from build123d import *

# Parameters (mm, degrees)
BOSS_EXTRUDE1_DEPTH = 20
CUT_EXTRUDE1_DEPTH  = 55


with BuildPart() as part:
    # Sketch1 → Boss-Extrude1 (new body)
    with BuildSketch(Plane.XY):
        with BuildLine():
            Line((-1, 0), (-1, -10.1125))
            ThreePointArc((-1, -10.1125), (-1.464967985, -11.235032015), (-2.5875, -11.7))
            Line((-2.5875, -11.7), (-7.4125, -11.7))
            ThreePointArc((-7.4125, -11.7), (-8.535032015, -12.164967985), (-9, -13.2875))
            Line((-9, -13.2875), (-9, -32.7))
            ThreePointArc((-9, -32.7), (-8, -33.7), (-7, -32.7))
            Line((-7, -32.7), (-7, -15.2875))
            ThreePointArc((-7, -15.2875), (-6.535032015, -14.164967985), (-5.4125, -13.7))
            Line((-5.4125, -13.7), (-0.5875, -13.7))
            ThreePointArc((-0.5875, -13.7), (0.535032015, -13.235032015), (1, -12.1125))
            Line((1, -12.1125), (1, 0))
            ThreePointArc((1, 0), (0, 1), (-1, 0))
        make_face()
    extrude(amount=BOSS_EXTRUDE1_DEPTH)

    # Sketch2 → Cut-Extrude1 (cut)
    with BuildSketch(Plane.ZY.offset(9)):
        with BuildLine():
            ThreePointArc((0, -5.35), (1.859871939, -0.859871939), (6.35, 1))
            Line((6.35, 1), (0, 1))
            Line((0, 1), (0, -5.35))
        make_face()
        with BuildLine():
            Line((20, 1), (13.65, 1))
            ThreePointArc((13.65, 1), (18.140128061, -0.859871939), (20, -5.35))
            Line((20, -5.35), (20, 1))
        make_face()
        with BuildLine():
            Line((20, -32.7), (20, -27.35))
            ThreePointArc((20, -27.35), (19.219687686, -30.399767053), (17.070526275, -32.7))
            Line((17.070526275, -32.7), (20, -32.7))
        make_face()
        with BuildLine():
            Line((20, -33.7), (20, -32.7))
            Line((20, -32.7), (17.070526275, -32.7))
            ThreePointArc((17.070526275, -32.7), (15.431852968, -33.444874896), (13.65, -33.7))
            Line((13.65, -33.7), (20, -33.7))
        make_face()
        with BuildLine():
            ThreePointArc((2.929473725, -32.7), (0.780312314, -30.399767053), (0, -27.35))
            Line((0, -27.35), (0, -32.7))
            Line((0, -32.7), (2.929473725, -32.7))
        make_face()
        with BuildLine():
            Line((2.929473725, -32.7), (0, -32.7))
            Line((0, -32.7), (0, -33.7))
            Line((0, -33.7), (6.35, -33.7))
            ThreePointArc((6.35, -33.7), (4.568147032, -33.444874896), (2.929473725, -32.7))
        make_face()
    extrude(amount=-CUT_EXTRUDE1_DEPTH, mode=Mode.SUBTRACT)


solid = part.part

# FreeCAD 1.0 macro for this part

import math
import FreeCAD as App
import Part
import Sketcher
from FreeCAD import Vector

doc = App.newDocument("Part")
body = doc.addObject("PartDesign::Body", "Body")

sketch1 = doc.addObject("Sketcher::SketchObject", "Sketch")
body.addObject(sketch1)
sketch1.AttachmentSupport = (doc.XY_Plane, [""])
sketch1.MapMode = "FlatFace"
sketch1.addGeometry(Part.LineSegment(Vector(-1, 0, 0), Vector(-1, -10.1125, 0)), False)
sketch1.addGeometry(Part.ArcOfCircle(Part.Circle(Vector(-2.5875, -10.1125, 0), Vector(0, 0, 1), 1.5875), math.radians(-90), math.radians(0)), False)
sketch1.addGeometry(Part.LineSegment(Vector(-2.5875, -11.7, 0), Vector(-7.4125, -11.7, 0)), False)
sketch1.addGeometry(Part.ArcOfCircle(Part.Circle(Vector(-7.4125, -13.2875, 0), Vector(0, 0, 1), 1.5875), math.radians(90), math.radians(180)), False)
sketch1.addGeometry(Part.LineSegment(Vector(-9, -13.2875, 0), Vector(-9, -32.7, 0)), False)
sketch1.addGeometry(Part.ArcOfCircle(Part.Circle(Vector(-8, -32.7, 0), Vector(0, 0, 1), 1), math.radians(180), math.radians(360)), False)
sketch1.addGeometry(Part.LineSegment(Vector(-7, -32.7, 0), Vector(-7, -15.2875, 0)), False)
sketch1.addGeometry(Part.ArcOfCircle(Part.Circle(Vector(-5.4125, -15.2875, 0), Vector(0, 0, 1), 1.5875), math.radians(90), math.radians(180)), False)
sketch1.addGeometry(Part.LineSegment(Vector(-5.4125, -13.7, 0), Vector(-0.5875, -13.7, 0)), False)
sketch1.addGeometry(Part.ArcOfCircle(Part.Circle(Vector(-0.5875, -12.1125, 0), Vector(0, 0, 1), 1.5875), math.radians(-90), math.radians(0)), False)
sketch1.addGeometry(Part.LineSegment(Vector(1, -12.1125, 0), Vector(1, 0, 0)), False)
sketch1.addGeometry(Part.ArcOfCircle(Part.Circle(Vector(0, 0, 0), Vector(0, 0, 1), 1), math.radians(0), math.radians(180)), False)
sketch1.addConstraint(Sketcher.Constraint("Tangent", 0, 2, 1, 2))
sketch1.addConstraint(Sketcher.Constraint("Tangent", 1, 1, 2, 1))
sketch1.addConstraint(Sketcher.Constraint("Tangent", 2, 2, 3, 1))
sketch1.addConstraint(Sketcher.Constraint("Tangent", 3, 2, 4, 1))
sketch1.addConstraint(Sketcher.Constraint("Tangent", 4, 2, 5, 1))
sketch1.addConstraint(Sketcher.Constraint("Tangent", 5, 2, 6, 1))
sketch1.addConstraint(Sketcher.Constraint("Tangent", 6, 2, 7, 2))
sketch1.addConstraint(Sketcher.Constraint("Tangent", 7, 1, 8, 1))
sketch1.addConstraint(Sketcher.Constraint("Tangent", 8, 2, 9, 1))
sketch1.addConstraint(Sketcher.Constraint("Tangent", 9, 2, 10, 1))
sketch1.addConstraint(Sketcher.Constraint("Tangent", 10, 2, 11, 1))
sketch1.addConstraint(Sketcher.Constraint("Tangent", 11, 2, 0, 1))
sketch1.addConstraint(Sketcher.Constraint("Vertical", 0))
sketch1.addConstraint(Sketcher.Constraint("Horizontal", 2))
sketch1.addConstraint(Sketcher.Constraint("Vertical", 4))
sketch1.addConstraint(Sketcher.Constraint("Vertical", 6))
sketch1.addConstraint(Sketcher.Constraint("Horizontal", 8))
sketch1.addConstraint(Sketcher.Constraint("Vertical", 10))
sketch1.addConstraint(Sketcher.Constraint("Coincident", 11, 3, -1, 1))
sketch1.addConstraint(Sketcher.Constraint("Equal", 1, 3))
sketch1.addConstraint(Sketcher.Constraint("Equal", 3, 7))
sketch1.addConstraint(Sketcher.Constraint("Equal", 7, 9))
sketch1.addConstraint(Sketcher.Constraint("Equal", 5, 11))
sketch1.addConstraint(Sketcher.Constraint("Radius", 5, 1.0))
sketch1.addConstraint(Sketcher.Constraint("DistanceX", 5, 3, -1, 1, 8.0))
sketch1.addConstraint(Sketcher.Constraint("DistanceY", 7, 3, 3, 3, 2.0))
sketch1.addConstraint(Sketcher.Constraint("DistanceY", 4, 2, 2, 2, 21.0))
sketch1.addConstraint(Sketcher.Constraint("DistanceY", 5, 3, -1, 1, 32.7))
sketch1.addConstraint(Sketcher.Constraint("Radius", 1, 1.5875))
pad1 = doc.addObject("PartDesign::Pad", "Pad")
body.addObject(pad1)
pad1.Profile = sketch1
pad1.Length = 20

sketch2 = doc.addObject("Sketcher::SketchObject", "Sketch001")
body.addObject(sketch2)
sketch2.AttachmentSupport = (doc.YZ_Plane, [""])
sketch2.MapMode = "FlatFace"
sketch2.AttachmentOffset = App.Placement(Vector(0, 0, -9), App.Rotation())
sketch2.addGeometry(Part.ArcOfCircle(Part.Circle(Vector(-5.35, 6.35, 0), Vector(0, 0, 1), 6.35), math.radians(-90), math.radians(0)), False)
sketch2.addGeometry(Part.LineSegment(Vector(1, 6.35, 0), Vector(1, 0, 0)), False)
sketch2.addGeometry(Part.LineSegment(Vector(1, 0, 0), Vector(-5.35, 0, 0)), False)
sketch2.addGeometry(Part.LineSegment(Vector(1, 20, 0), Vector(1, 13.65, 0)), False)
sketch2.addGeometry(Part.ArcOfCircle(Part.Circle(Vector(-5.35, 13.65, 0), Vector(0, 0, 1), 6.35), math.radians(0), math.radians(90)), False)
sketch2.addGeometry(Part.LineSegment(Vector(-5.35, 20, 0), Vector(1, 20, 0)), False)
sketch2.addGeometry(Part.ArcOfCircle(Part.Circle(Vector(-27.35, 13.65, 0), Vector(0, 0, 1), 6.35), math.radians(90), math.radians(147.407156)), False)
sketch2.addGeometry(Part.ArcOfCircle(Part.Circle(Vector(-27.35, 13.65, 0), Vector(0, 0, 1), 6.35), math.radians(147.407156), math.radians(180)), False)
sketch2.addGeometry(Part.LineSegment(Vector(-33.7, 13.65, 0), Vector(-33.7, 20, 0)), False)
sketch2.addGeometry(Part.LineSegment(Vector(-33.7, 20, 0), Vector(-27.35, 20, 0)), False)
sketch2.addGeometry(Part.ArcOfCircle(Part.Circle(Vector(-27.35, 6.35, 0), Vector(0, 0, 1), 6.35), math.radians(-147.407156), math.radians(-90)), False)
sketch2.addGeometry(Part.LineSegment(Vector(-27.35, 0, 0), Vector(-33.7, 0, 0)), False)
sketch2.addGeometry(Part.LineSegment(Vector(-33.7, 0, 0), Vector(-33.7, 6.35, 0)), False)
sketch2.addGeometry(Part.ArcOfCircle(Part.Circle(Vector(-27.35, 6.35, 0), Vector(0, 0, 1), 6.35), math.radians(-180), math.radians(-147.407156)), False)
sketch2.addConstraint(Sketcher.Constraint("Tangent", 0, 2, 1, 1))
sketch2.addConstraint(Sketcher.Constraint("Coincident", 1, 2, 2, 1))
sketch2.addConstraint(Sketcher.Constraint("Tangent", 2, 2, 0, 1))
sketch2.addConstraint(Sketcher.Constraint("Tangent", 3, 2, 4, 1))
sketch2.addConstraint(Sketcher.Constraint("Tangent", 4, 2, 5, 1))
sketch2.addConstraint(Sketcher.Constraint("Coincident", 5, 2, 3, 1))
sketch2.addConstraint(Sketcher.Constraint("Tangent", 6, 2, 7, 1))
sketch2.addConstraint(Sketcher.Constraint("Tangent", 7, 2, 8, 1))
sketch2.addConstraint(Sketcher.Constraint("Coincident", 8, 2, 9, 1))
sketch2.addConstraint(Sketcher.Constraint("Tangent", 9, 2, 6, 1))
sketch2.addConstraint(Sketcher.Constraint("Tangent", 10, 2, 11, 1))
sketch2.addConstraint(Sketcher.Constraint("Coincident", 11, 2, 12, 1))
sketch2.addConstraint(Sketcher.Constraint("Tangent", 12, 2, 13, 1))
sketch2.addConstraint(Sketcher.Constraint("Tangent", 13, 2, 10, 1))
sketch2.addConstraint(Sketcher.Constraint("Vertical", 1))
sketch2.addConstraint(Sketcher.Constraint("Horizontal", 2))
sketch2.addConstraint(Sketcher.Constraint("Vertical", 3))
sketch2.addConstraint(Sketcher.Constraint("Horizontal", 5))
sketch2.addConstraint(Sketcher.Constraint("Vertical", 8))
sketch2.addConstraint(Sketcher.Constraint("Horizontal", 9))
sketch2.addConstraint(Sketcher.Constraint("Horizontal", 11))
sketch2.addConstraint(Sketcher.Constraint("Vertical", 12))
sketch2.addConstraint(Sketcher.Constraint("Equal", 0, 4))
sketch2.addConstraint(Sketcher.Constraint("Equal", 4, 6))
sketch2.addConstraint(Sketcher.Constraint("Equal", 6, 7))
sketch2.addConstraint(Sketcher.Constraint("Equal", 7, 10))
sketch2.addConstraint(Sketcher.Constraint("Equal", 10, 13))
sketch2.addConstraint(Sketcher.Constraint("PointOnObject", 1, 2, -1))
sketch2.addConstraint(Sketcher.Constraint("PointOnObject", 10, 2, -1))
sketch2.addConstraint(Sketcher.Constraint("Horizontal", 4, 3, 6, 3))
sketch2.addConstraint(Sketcher.Constraint("Vertical", 0, 3, 4, 3))
sketch2.addConstraint(Sketcher.Constraint("Vertical", 7, 3, 10, 3))
sketch2.addConstraint(Sketcher.Constraint("Vertical", 6, 2, 13, 2))
sketch2.addConstraint(Sketcher.Constraint("Radius", 0, 6.35))
sketch2.addConstraint(Sketcher.Constraint("DistanceX", -1, 1, 0, 2, 1.0))
sketch2.addConstraint(Sketcher.Constraint("DistanceY", -1, 1, 4, 2, 20.0))
sketch2.addConstraint(Sketcher.Constraint("DistanceX", 6, 3, 4, 3, 22.0))
sketch2.addConstraint(Sketcher.Constraint("DistanceX", 7, 2, 6, 2, 1.0))
pocket1 = doc.addObject("PartDesign::Pocket", "Pocket")
body.addObject(pocket1)
pocket1.Profile = sketch2
pocket1.Length = 55
pocket1.Reversed = True

doc.recompute()
